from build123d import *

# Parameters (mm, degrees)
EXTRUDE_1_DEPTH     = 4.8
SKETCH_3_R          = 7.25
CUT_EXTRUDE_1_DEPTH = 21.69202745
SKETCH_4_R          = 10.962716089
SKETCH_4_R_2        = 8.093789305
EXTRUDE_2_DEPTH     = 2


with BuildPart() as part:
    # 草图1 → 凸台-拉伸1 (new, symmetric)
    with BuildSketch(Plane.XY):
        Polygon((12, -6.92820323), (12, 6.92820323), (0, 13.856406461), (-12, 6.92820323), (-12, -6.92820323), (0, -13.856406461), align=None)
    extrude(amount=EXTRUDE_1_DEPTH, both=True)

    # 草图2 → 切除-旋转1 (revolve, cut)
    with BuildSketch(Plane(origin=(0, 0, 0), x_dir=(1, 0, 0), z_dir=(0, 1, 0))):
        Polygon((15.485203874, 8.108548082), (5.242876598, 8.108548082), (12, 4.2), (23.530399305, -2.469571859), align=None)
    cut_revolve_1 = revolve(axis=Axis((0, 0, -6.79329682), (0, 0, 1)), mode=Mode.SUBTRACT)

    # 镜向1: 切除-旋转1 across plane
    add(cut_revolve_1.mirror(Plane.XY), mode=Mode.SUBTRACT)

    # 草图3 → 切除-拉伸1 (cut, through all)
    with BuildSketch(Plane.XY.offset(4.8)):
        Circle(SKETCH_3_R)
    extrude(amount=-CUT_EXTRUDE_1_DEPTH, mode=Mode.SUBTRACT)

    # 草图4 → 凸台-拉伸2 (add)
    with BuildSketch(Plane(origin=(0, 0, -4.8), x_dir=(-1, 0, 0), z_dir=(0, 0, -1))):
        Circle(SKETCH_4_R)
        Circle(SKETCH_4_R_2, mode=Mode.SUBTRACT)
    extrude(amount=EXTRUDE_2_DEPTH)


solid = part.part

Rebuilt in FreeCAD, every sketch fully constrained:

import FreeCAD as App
import Part
import Sketcher

V = App.Vector
Q = App.Units.Quantity

doc = App.newDocument("Part")
params = doc.addObject("Spreadsheet::Sheet", "Params")
for row, (alias, value) in enumerate([
    ("pad1_length", "9.6 mm"),
    ("groove_angle", "360 deg"),
    ("sketch3_diameter", "14.5 mm"),
    ("pad2_length", "2 mm"),
], start=1):
    params.set(f"A{row}", alias)
    params.set(f"B{row}", "=" + value)
    params.setAlias(f"B{row}", alias)

body = doc.addObject("PartDesign::Body", "Body")

# Sketch on XY plane
sketch1 = body.newObject("Sketcher::SketchObject", "Sketch")
sketch1.AttachmentSupport = (doc.getObject("XY_Plane"), [""])
sketch1.MapMode = "FlatFace"
sketch1.addGeometry(Part.LineSegment(V(12, -7, 0), V(12, 7, 0)), False)
sketch1.addGeometry(Part.LineSegment(V(12, 7, 0), V(0, 14, 0)), False)
sketch1.addGeometry(Part.LineSegment(V(0, 14, 0), V(-12, 7, 0)), False)
sketch1.addGeometry(Part.LineSegment(V(-12, 7, 0), V(-12, -7, 0)), False)
sketch1.addGeometry(Part.LineSegment(V(-12, -7, 0), V(0, -14, 0)), False)
sketch1.addGeometry(Part.LineSegment(V(0, -14, 0), V(12, -7, 0)), False)
sketch1.addConstraint(Sketcher.Constraint("Coincident", 0, 2, 1, 1))
sketch1.addConstraint(Sketcher.Constraint("Coincident", 1, 2, 2, 1))
sketch1.addConstraint(Sketcher.Constraint("Coincident", 2, 2, 3, 1))
sketch1.addConstraint(Sketcher.Constraint("Coincident", 3, 2, 4, 1))
sketch1.addConstraint(Sketcher.Constraint("Coincident", 4, 2, 5, 1))
sketch1.addConstraint(Sketcher.Constraint("Coincident", 5, 2, 0, 1))
sketch1.addConstraint(Sketcher.Constraint("Vertical", 0))
sketch1.addConstraint(Sketcher.Constraint("Vertical", 3))
sketch1.addConstraint(Sketcher.Constraint("Symmetric", 0, 2, 3, 2, -1, 1))
sketch1.addConstraint(Sketcher.Constraint("Symmetric", 1, 2, 4, 2, -1, 1))
sketch1.addConstraint(Sketcher.Constraint("PointOnObject", 1, 2, -2))
sketch1.addConstraint(Sketcher.Constraint("Parallel", 2, 5))
sketch1.addConstraint(Sketcher.Constraint("Horizontal", 0, 2, 2, 2))
sketch1.addConstraint(Sketcher.Constraint("Angle", 1, Q("150 deg")))
sketch1.addConstraint(Sketcher.Constraint("DistanceX", -1, 1, 0, 2, Q("12 mm")))
sketch1.addConstraint(Sketcher.Constraint("DistanceY", 0, 1, 0, 2, Q("13.856406 mm")))
pad1 = body.newObject("PartDesign::Pad", "Pad")
pad1.Profile = sketch1
pad1.setExpression("Length", "Params.pad1_length")
pad1.Midplane = True

# Sketch on XZ plane
sketch2 = body.newObject("Sketcher::SketchObject", "Sketch001")
sketch2.AttachmentSupport = (doc.getObject("XZ_Plane"), [""])
sketch2.MapMode = "FlatFace"
sketch2.addGeometry(Part.LineSegment(V(15, -8, 0), V(5, -8, 0)), False)
sketch2.addGeometry(Part.LineSegment(V(5, -8, 0), V(12, -4, 0)), False)
sketch2.addGeometry(Part.LineSegment(V(12, -4, 0), V(24, 2, 0)), False)
sketch2.addGeometry(Part.LineSegment(V(24, 2, 0), V(15, -8, 0)), False)
sketch2.addConstraint(Sketcher.Constraint("Coincident", 0, 2, 1, 1))
sketch2.addConstraint(Sketcher.Constraint("Coincident", 1, 2, 2, 1))
sketch2.addConstraint(Sketcher.Constraint("Coincident", 2, 2, 3, 1))
sketch2.addConstraint(Sketcher.Constraint("Coincident", 3, 2, 0, 1))
sketch2.addConstraint(Sketcher.Constraint("Horizontal", 0))
sketch2.addConstraint(Sketcher.Constraint("Parallel", 1, 2))
sketch2.addConstraint(Sketcher.Constraint("DistanceX", -1, 1, 1, 2, Q("12 mm")))
sketch2.addConstraint(Sketcher.Constraint("DistanceY", 1, 2, -1, 1, Q("4.2 mm")))
sketch2.addConstraint(Sketcher.Constraint("DistanceX", -1, 1, 2, 2, Q("23.530399 mm")))
sketch2.addConstraint(Sketcher.Constraint("Distance", 2, Q("13.320409 mm")))
sketch2.addConstraint(Sketcher.Constraint("DistanceX", 0, 2, 0, 1, Q("10.242327 mm")))
sketch2.addConstraint(Sketcher.Constraint("DistanceY", 0, 2, -1, 1, Q("8.108548 mm")))
groove = body.newObject("PartDesign::Groove", "Groove")
groove.Profile = sketch2
groove.ReferenceAxis = (sketch2, ["V_Axis"])
groove.setExpression("Angle", "Params.groove_angle")
doc.recompute()

mirrored = body.newObject("PartDesign::Mirrored", "Mirrored")
mirrored.Originals = [groove]
mirrored.MirrorPlane = (doc.getObject("XY_Plane"), [""])
body.Tip = mirrored

# Sketch on XY plane
sketch3 = body.newObject("Sketcher::SketchObject", "Sketch002")
sketch3.AttachmentSupport = (doc.getObject("XY_Plane"), [""])
sketch3.MapMode = "FlatFace"
sketch3.AttachmentOffset = App.Placement(V(0, 0, 4.8), App.Rotation())
sketch3.addGeometry(Part.Circle(V(0, 0, 0), V(0, 0, 1), 7), False)
sketch3.addConstraint(Sketcher.Constraint("Coincident", 0, 3, -1, 1))
sketch3.addConstraint(Sketcher.Constraint("Diameter", 0, Q("14.5 mm")))
sketch3.setExpression("Constraints[1]", "Params.sketch3_diameter")
pocket1 = body.newObject("PartDesign::Pocket", "Pocket")
pocket1.Profile = sketch3
pocket1.Type = "ThroughAll"

# Sketch on XY plane
sketch4 = body.newObject("Sketcher::SketchObject", "Sketch003")
sketch4.AttachmentSupport = (doc.getObject("XY_Plane"), [""])
sketch4.MapMode = "FlatFace"
sketch4.AttachmentOffset = App.Placement(V(0, 0, -4.8), App.Rotation())
sketch4.addGeometry(Part.Circle(V(0, 0, 0), V(0, 0, 1), 11), False)
sketch4.addGeometry(Part.Circle(V(0, 0, 0), V(0, 0, 1), 8), False)
sketch4.addConstraint(Sketcher.Constraint("Coincident", 0, 3, -1, 1))
sketch4.addConstraint(Sketcher.Constraint("Coincident", 1, 3, -1, 1))
sketch4.addConstraint(Sketcher.Constraint("Diameter", 1, Q("16.187579 mm")))
sketch4.addConstraint(Sketcher.Constraint("Diameter", 0, Q("21.925432 mm")))
pad2 = body.newObject("PartDesign::Pad", "Pad001")
pad2.Profile = sketch4
pad2.setExpression("Length", "Params.pad2_length")
pad2.Reversed = True

doc.recompute()
